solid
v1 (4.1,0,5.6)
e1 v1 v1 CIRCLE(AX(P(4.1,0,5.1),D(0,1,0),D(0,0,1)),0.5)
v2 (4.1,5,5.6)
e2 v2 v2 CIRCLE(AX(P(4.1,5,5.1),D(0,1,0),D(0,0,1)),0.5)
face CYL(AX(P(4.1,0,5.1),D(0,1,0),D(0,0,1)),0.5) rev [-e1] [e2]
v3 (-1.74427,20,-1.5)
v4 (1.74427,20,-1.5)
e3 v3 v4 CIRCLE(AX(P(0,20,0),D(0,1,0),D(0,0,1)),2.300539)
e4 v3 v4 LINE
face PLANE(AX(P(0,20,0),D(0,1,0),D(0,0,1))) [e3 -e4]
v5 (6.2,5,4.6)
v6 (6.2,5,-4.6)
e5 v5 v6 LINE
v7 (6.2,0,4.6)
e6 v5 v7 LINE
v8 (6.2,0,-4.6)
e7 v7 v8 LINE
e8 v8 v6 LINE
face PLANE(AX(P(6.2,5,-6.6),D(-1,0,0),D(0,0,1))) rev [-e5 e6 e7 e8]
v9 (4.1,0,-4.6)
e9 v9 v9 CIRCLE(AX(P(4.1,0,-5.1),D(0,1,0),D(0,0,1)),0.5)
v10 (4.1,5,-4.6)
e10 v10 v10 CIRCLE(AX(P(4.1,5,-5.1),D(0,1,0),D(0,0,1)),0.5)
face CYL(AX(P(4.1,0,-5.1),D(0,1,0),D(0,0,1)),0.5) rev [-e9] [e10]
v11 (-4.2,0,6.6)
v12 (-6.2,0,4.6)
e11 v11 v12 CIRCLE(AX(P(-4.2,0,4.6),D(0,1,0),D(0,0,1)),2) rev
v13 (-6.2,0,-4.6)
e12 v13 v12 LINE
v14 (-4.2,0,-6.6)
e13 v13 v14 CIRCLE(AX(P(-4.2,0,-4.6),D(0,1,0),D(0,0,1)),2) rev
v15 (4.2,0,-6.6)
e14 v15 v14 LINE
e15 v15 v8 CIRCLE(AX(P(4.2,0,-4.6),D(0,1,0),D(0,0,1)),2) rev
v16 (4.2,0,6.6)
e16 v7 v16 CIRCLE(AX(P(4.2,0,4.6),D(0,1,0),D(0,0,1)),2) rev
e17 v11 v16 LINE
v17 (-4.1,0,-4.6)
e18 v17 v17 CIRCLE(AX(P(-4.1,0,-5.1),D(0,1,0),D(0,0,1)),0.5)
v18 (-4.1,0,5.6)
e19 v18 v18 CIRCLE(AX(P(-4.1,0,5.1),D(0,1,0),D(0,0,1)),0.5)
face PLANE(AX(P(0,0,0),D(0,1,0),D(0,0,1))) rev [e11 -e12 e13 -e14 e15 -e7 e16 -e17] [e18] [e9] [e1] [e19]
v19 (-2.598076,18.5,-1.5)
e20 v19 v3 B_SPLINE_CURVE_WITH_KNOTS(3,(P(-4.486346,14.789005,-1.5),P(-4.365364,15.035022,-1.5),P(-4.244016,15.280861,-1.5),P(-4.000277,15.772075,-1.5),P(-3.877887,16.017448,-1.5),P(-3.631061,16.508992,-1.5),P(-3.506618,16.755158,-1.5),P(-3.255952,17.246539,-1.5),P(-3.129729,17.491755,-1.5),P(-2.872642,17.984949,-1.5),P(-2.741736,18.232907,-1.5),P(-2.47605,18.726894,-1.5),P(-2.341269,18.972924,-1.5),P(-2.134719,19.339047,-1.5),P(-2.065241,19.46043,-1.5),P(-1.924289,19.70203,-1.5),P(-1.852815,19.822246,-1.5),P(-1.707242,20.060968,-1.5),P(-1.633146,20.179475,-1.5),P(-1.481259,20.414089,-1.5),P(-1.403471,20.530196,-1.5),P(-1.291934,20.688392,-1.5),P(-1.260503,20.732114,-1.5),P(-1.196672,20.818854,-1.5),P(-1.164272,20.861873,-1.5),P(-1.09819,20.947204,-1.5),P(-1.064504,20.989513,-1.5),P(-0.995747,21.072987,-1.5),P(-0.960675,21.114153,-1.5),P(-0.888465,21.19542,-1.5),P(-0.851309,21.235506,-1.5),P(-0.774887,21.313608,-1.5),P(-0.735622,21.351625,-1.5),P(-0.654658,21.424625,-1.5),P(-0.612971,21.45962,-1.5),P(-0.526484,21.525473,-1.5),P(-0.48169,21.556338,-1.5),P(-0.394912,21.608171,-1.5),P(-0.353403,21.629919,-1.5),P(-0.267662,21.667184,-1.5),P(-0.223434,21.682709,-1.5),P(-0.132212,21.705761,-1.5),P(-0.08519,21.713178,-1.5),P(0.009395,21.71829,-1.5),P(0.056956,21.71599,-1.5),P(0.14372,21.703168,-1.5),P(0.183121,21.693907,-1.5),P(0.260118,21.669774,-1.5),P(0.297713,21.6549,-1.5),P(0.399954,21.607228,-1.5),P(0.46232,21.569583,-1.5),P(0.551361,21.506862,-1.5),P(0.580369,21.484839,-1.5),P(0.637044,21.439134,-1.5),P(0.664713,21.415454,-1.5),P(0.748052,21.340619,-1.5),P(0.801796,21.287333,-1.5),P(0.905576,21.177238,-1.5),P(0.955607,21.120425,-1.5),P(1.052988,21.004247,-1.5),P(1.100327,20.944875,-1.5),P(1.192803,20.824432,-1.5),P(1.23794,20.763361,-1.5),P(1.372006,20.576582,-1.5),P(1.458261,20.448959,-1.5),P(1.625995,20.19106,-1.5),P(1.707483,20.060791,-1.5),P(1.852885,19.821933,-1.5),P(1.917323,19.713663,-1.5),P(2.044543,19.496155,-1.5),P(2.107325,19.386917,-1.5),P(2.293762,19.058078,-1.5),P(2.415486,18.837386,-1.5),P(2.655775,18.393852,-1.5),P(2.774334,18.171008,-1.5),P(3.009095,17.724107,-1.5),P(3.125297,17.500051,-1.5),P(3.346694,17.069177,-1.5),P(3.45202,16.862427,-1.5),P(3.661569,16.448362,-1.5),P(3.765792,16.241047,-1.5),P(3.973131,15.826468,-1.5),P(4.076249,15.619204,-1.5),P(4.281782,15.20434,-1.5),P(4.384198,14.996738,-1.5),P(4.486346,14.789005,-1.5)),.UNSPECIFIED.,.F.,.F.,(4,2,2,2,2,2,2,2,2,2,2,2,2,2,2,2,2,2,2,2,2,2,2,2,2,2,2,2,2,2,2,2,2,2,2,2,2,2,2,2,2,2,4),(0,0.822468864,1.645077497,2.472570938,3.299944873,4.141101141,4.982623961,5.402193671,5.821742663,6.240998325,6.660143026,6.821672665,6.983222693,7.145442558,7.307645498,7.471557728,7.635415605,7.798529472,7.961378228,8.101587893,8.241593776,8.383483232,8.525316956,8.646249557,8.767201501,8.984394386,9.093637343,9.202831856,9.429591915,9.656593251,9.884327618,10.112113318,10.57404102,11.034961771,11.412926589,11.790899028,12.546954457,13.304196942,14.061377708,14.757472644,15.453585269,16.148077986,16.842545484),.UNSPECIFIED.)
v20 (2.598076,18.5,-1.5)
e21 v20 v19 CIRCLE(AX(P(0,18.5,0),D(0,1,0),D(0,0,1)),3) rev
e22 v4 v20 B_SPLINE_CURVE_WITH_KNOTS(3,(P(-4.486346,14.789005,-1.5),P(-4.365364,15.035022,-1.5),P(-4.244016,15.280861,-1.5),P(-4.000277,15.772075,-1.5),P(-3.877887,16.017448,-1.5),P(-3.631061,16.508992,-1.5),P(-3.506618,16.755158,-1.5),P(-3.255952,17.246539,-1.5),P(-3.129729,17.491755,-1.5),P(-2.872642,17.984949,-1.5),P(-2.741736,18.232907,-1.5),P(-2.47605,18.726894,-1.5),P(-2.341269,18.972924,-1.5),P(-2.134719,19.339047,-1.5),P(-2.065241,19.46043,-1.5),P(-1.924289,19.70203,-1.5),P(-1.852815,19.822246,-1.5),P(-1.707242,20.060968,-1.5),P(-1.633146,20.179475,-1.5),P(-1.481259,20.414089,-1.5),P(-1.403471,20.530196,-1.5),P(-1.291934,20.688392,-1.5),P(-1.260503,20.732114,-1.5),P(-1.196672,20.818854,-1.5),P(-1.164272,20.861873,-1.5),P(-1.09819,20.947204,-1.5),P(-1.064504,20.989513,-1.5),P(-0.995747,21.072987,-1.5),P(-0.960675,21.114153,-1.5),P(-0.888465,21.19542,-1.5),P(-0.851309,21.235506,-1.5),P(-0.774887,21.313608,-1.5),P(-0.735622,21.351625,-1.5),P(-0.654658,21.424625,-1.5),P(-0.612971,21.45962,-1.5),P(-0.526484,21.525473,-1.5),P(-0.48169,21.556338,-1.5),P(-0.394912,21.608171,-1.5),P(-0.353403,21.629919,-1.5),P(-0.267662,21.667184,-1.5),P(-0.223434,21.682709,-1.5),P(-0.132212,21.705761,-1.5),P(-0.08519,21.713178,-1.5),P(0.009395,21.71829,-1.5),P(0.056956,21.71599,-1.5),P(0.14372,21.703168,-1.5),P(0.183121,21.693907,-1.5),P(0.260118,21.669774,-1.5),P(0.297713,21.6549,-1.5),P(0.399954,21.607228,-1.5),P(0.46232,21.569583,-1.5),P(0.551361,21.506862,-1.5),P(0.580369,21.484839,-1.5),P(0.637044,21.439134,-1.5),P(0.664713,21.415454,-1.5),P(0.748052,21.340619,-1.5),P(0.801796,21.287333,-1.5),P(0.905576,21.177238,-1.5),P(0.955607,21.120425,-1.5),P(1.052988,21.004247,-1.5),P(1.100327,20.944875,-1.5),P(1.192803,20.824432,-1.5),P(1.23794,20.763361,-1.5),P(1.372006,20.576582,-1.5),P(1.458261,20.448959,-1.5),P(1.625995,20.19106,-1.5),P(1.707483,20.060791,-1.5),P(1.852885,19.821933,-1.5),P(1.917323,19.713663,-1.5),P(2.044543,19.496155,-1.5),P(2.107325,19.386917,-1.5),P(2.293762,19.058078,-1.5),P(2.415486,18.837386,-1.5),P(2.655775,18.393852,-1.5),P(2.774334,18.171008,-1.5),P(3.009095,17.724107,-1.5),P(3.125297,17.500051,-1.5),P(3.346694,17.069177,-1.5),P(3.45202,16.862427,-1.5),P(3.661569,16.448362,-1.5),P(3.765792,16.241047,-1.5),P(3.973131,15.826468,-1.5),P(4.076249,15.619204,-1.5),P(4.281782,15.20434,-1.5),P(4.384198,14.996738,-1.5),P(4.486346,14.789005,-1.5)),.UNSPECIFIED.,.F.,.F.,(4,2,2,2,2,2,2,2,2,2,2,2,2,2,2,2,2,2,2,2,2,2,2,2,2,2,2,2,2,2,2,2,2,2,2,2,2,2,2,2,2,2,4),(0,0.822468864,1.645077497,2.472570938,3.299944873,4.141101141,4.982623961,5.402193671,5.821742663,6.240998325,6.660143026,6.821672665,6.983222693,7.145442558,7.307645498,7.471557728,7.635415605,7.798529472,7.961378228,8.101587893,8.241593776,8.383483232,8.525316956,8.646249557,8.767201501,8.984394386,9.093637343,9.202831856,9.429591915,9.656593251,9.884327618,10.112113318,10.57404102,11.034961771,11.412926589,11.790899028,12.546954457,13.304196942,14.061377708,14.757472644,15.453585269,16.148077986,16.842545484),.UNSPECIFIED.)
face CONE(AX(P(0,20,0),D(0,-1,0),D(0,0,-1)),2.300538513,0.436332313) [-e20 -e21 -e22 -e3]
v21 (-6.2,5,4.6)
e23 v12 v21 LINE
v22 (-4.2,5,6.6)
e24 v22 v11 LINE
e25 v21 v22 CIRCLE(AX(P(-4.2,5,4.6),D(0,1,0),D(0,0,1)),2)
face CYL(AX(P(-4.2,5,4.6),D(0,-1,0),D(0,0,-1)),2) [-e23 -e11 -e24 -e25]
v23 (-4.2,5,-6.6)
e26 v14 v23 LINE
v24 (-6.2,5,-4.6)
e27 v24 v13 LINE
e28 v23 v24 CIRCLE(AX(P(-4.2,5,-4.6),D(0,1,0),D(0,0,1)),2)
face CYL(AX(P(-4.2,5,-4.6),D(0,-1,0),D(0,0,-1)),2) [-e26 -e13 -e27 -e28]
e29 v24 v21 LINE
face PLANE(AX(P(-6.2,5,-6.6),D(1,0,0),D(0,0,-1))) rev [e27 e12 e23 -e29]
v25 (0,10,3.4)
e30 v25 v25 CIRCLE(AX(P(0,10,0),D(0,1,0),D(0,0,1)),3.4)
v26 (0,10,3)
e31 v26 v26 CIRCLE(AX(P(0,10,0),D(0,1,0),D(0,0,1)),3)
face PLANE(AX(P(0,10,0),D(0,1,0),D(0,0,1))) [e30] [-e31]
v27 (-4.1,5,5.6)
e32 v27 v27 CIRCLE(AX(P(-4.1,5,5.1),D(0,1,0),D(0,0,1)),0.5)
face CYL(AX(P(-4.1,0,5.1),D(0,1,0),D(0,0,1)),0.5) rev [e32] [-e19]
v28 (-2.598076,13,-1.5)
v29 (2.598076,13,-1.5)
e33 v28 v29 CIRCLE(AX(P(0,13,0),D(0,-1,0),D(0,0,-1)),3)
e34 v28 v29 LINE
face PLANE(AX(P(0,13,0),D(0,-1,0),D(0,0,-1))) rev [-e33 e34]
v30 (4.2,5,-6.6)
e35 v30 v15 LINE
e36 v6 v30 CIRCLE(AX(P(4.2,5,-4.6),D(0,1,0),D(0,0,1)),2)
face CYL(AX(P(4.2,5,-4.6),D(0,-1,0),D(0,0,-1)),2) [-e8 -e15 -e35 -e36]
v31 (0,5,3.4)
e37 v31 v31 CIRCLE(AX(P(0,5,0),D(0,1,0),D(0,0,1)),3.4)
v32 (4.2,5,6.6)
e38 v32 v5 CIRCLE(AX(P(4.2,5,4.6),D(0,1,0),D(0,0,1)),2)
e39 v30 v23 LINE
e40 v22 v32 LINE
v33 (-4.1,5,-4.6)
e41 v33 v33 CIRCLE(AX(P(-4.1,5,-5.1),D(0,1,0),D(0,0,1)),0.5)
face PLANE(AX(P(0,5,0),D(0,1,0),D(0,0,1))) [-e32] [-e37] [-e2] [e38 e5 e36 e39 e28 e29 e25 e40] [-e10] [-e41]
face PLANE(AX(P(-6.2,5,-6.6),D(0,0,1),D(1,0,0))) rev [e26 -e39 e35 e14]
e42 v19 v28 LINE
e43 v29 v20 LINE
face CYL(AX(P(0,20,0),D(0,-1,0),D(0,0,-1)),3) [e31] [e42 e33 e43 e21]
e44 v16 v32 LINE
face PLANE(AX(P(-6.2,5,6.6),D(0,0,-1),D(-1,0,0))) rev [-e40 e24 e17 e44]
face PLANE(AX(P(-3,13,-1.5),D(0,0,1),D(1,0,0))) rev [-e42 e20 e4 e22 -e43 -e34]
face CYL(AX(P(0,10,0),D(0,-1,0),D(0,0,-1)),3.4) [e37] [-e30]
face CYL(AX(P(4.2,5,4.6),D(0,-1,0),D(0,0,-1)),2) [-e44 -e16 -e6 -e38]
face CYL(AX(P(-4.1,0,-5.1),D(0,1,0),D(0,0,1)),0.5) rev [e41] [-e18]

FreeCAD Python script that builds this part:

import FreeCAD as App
import Part
import Sketcher


def edges_at(feature, points):
    """Names of the edges that pass closest to the given points."""
    edges = feature.Shape.Edges
    near = lambda p: min(range(len(edges)), key=lambda i: edges[i].distToShape(Part.Vertex(*p))[0])
    return sorted({f"Edge{near(p) + 1}" for p in points})


def add_polygon(sketch, points):
    """Adds a closed chain of lines whose ends are joined by coincident constraints."""
    first, n = sketch.GeometryCount, len(points)
    for a, b in zip(points, points[1:] + points[:1]):
        sketch.addGeometry(Part.LineSegment(App.Vector(*a, 0), App.Vector(*b, 0)), False)
    for i in range(n):
        sketch.addConstraint(Sketcher.Constraint("Coincident", first + i, 2, first + (i + 1) % n, 1))

doc = App.newDocument("Part")
body = doc.addObject("PartDesign::Body", "Body")

sketch1 = body.newObject("Sketcher::SketchObject", "Sketch")
sketch1.AttachmentSupport = (doc.getObject("XZ_Plane"), [""])
sketch1.MapMode = "FlatFace"
add_polygon(sketch1, [(-6, -7), (-6, 7), (6, 7), (6, -7)])
sketch1.addConstraint(Sketcher.Constraint("Vertical", 0))
sketch1.addConstraint(Sketcher.Constraint("Horizontal", 1))
sketch1.addConstraint(Sketcher.Constraint("Vertical", 2))
sketch1.addConstraint(Sketcher.Constraint("Horizontal", 3))
sketch1.addConstraint(Sketcher.Constraint("Symmetric", 0, 2, 2, 2, -1, 1))
sketch1.addConstraint(Sketcher.Constraint("DistanceX", 1, 1, 1, 2, 12.4))
sketch1.addConstraint(Sketcher.Constraint("DistanceY", 0, 1, 0, 2, 13.2))
pad1 = body.newObject("PartDesign::Pad", "Pad")
pad1.Profile = sketch1
pad1.Length = 5
pad1.Reversed = True
doc.recompute()

fillet = body.newObject("PartDesign::Fillet", "Fillet")
fillet.Base = (pad1, edges_at(pad1, [
    (-6.2, 2.5, -6.6),
    (6.2, 2.5, -6.6),
    (6.2, 2.5, 6.6),
    (-6.2, 2.5, 6.6),
]))
fillet.Radius = 2

sketch2 = body.newObject("Sketcher::SketchObject", "Sketch001")
sketch2.AttachmentSupport = (doc.getObject("XZ_Plane"), [""])
sketch2.MapMode = "FlatFace"
sketch2.AttachmentOffset = App.Placement(App.Vector(0, 0, -5), App.Rotation())
sketch2.addGeometry(Part.Circle(App.Vector(0, 0, 0), App.Vector(0, 0, 1), 3.4), False)
sketch2.addConstraint(Sketcher.Constraint("Coincident", 0, 3, -1, 1))
sketch2.addConstraint(Sketcher.Constraint("Diameter", 0, 6.8))
pad2 = body.newObject("PartDesign::Pad", "Pad001")
pad2.Profile = sketch2
pad2.Length = 5
pad2.Reversed = True

sketch3 = body.newObject("Sketcher::SketchObject", "Sketch002")
sketch3.AttachmentSupport = (doc.getObject("XZ_Plane"), [""])
sketch3.MapMode = "FlatFace"
sketch3.AttachmentOffset = App.Placement(App.Vector(0, 0, -10), App.Rotation())
sketch3.addGeometry(Part.Circle(App.Vector(0, 0, 0), App.Vector(0, 0, 1), 3), False)
sketch3.addConstraint(Sketcher.Constraint("Coincident", 0, 3, -1, 1))
sketch3.addConstraint(Sketcher.Constraint("Diameter", 0, 6.0))
pad3 = body.newObject("PartDesign::Pad", "Pad002")
pad3.Profile = sketch3
pad3.Length = 10
pad3.Reversed = True
doc.recompute()

chamfer = body.newObject("PartDesign::Chamfer", "Chamfer")
chamfer.Base = (pad3, edges_at(pad3, [(0, 20, -3)]))
chamfer.ChamferType = "Two distances"
chamfer.Size = 1.5
chamfer.Size2 = 0.699461

sketch4 = body.newObject("Sketcher::SketchObject", "Sketch003")
sketch4.AttachmentSupport = (doc.getObject("XZ_Plane"), [""])
sketch4.MapMode = "FlatFace"
sketch4.AttachmentOffset = App.Placement(App.Vector(0, 0, -5), App.Rotation())
sketch4.addGeometry(Part.Circle(App.Vector(4.1, 5.1, 0), App.Vector(0, 0, 1), 0.5), False)
sketch4.addGeometry(Part.Circle(App.Vector(-4.1, 5.1, 0), App.Vector(0, 0, 1), 0.5), False)
sketch4.addGeometry(Part.Circle(App.Vector(-4.1, -5.1, 0), App.Vector(0, 0, 1), 0.5), False)
sketch4.addGeometry(Part.Circle(App.Vector(4.1, -5.1, 0), App.Vector(0, 0, 1), 0.5), False)
sketch4.addConstraint(Sketcher.Constraint("Equal", 0, 1))
sketch4.addConstraint(Sketcher.Constraint("Equal", 1, 2))
sketch4.addConstraint(Sketcher.Constraint("Equal", 2, 3))
sketch4.addConstraint(Sketcher.Constraint("Symmetric", 0, 3, 2, 3, -1, 1))
sketch4.addConstraint(Sketcher.Constraint("Symmetric", 1, 3, 3, 3, -1, 1))
sketch4.addConstraint(Sketcher.Constraint("Symmetric", 0, 3, 1, 3, -2))
sketch4.addConstraint(Sketcher.Constraint("Diameter", 0, 1.0))
sketch4.addConstraint(Sketcher.Constraint("DistanceX", -1, 1, 0, 3, 4.1))
sketch4.addConstraint(Sketcher.Constraint("DistanceY", -1, 1, 0, 3, 5.1))
pocket1 = body.newObject("PartDesign::Pocket", "Pocket")
pocket1.Profile = sketch4
pocket1.Type = "ThroughAll"
pocket1.Reversed = True

sketch5 = body.newObject("Sketcher::SketchObject", "Sketch004")
sketch5.AttachmentSupport = (doc.getObject("XZ_Plane"), [""])
sketch5.MapMode = "FlatFace"
sketch5.AttachmentOffset = App.Placement(App.Vector(0, 0, -20), App.Rotation())
add_polygon(sketch5, [(-3, -3), (-3, -1.5), (3.1, -1.5), (3.1, -3)])
sketch5.addConstraint(Sketcher.Constraint("Vertical", 0))
sketch5.addConstraint(Sketcher.Constraint("Horizontal", 1))
sketch5.addConstraint(Sketcher.Constraint("Vertical", 2))
sketch5.addConstraint(Sketcher.Constraint("Horizontal", 3))
sketch5.addConstraint(Sketcher.Constraint("DistanceY", 0, 1, 0, 2, 1.5))
sketch5.addConstraint(Sketcher.Constraint("DistanceX", 0, 2, -1, 1, 3.0))
sketch5.addConstraint(Sketcher.Constraint("DistanceY", 2, 2, -1, 1, 3.0))
sketch5.addConstraint(Sketcher.Constraint("DistanceX", 1, 1, 1, 2, 6.051229))
pocket2 = body.newObject("PartDesign::Pocket", "Pocket001")
pocket2.Profile = sketch5
pocket2.Length = 7
pocket2.Reversed = True

doc.recompute()
